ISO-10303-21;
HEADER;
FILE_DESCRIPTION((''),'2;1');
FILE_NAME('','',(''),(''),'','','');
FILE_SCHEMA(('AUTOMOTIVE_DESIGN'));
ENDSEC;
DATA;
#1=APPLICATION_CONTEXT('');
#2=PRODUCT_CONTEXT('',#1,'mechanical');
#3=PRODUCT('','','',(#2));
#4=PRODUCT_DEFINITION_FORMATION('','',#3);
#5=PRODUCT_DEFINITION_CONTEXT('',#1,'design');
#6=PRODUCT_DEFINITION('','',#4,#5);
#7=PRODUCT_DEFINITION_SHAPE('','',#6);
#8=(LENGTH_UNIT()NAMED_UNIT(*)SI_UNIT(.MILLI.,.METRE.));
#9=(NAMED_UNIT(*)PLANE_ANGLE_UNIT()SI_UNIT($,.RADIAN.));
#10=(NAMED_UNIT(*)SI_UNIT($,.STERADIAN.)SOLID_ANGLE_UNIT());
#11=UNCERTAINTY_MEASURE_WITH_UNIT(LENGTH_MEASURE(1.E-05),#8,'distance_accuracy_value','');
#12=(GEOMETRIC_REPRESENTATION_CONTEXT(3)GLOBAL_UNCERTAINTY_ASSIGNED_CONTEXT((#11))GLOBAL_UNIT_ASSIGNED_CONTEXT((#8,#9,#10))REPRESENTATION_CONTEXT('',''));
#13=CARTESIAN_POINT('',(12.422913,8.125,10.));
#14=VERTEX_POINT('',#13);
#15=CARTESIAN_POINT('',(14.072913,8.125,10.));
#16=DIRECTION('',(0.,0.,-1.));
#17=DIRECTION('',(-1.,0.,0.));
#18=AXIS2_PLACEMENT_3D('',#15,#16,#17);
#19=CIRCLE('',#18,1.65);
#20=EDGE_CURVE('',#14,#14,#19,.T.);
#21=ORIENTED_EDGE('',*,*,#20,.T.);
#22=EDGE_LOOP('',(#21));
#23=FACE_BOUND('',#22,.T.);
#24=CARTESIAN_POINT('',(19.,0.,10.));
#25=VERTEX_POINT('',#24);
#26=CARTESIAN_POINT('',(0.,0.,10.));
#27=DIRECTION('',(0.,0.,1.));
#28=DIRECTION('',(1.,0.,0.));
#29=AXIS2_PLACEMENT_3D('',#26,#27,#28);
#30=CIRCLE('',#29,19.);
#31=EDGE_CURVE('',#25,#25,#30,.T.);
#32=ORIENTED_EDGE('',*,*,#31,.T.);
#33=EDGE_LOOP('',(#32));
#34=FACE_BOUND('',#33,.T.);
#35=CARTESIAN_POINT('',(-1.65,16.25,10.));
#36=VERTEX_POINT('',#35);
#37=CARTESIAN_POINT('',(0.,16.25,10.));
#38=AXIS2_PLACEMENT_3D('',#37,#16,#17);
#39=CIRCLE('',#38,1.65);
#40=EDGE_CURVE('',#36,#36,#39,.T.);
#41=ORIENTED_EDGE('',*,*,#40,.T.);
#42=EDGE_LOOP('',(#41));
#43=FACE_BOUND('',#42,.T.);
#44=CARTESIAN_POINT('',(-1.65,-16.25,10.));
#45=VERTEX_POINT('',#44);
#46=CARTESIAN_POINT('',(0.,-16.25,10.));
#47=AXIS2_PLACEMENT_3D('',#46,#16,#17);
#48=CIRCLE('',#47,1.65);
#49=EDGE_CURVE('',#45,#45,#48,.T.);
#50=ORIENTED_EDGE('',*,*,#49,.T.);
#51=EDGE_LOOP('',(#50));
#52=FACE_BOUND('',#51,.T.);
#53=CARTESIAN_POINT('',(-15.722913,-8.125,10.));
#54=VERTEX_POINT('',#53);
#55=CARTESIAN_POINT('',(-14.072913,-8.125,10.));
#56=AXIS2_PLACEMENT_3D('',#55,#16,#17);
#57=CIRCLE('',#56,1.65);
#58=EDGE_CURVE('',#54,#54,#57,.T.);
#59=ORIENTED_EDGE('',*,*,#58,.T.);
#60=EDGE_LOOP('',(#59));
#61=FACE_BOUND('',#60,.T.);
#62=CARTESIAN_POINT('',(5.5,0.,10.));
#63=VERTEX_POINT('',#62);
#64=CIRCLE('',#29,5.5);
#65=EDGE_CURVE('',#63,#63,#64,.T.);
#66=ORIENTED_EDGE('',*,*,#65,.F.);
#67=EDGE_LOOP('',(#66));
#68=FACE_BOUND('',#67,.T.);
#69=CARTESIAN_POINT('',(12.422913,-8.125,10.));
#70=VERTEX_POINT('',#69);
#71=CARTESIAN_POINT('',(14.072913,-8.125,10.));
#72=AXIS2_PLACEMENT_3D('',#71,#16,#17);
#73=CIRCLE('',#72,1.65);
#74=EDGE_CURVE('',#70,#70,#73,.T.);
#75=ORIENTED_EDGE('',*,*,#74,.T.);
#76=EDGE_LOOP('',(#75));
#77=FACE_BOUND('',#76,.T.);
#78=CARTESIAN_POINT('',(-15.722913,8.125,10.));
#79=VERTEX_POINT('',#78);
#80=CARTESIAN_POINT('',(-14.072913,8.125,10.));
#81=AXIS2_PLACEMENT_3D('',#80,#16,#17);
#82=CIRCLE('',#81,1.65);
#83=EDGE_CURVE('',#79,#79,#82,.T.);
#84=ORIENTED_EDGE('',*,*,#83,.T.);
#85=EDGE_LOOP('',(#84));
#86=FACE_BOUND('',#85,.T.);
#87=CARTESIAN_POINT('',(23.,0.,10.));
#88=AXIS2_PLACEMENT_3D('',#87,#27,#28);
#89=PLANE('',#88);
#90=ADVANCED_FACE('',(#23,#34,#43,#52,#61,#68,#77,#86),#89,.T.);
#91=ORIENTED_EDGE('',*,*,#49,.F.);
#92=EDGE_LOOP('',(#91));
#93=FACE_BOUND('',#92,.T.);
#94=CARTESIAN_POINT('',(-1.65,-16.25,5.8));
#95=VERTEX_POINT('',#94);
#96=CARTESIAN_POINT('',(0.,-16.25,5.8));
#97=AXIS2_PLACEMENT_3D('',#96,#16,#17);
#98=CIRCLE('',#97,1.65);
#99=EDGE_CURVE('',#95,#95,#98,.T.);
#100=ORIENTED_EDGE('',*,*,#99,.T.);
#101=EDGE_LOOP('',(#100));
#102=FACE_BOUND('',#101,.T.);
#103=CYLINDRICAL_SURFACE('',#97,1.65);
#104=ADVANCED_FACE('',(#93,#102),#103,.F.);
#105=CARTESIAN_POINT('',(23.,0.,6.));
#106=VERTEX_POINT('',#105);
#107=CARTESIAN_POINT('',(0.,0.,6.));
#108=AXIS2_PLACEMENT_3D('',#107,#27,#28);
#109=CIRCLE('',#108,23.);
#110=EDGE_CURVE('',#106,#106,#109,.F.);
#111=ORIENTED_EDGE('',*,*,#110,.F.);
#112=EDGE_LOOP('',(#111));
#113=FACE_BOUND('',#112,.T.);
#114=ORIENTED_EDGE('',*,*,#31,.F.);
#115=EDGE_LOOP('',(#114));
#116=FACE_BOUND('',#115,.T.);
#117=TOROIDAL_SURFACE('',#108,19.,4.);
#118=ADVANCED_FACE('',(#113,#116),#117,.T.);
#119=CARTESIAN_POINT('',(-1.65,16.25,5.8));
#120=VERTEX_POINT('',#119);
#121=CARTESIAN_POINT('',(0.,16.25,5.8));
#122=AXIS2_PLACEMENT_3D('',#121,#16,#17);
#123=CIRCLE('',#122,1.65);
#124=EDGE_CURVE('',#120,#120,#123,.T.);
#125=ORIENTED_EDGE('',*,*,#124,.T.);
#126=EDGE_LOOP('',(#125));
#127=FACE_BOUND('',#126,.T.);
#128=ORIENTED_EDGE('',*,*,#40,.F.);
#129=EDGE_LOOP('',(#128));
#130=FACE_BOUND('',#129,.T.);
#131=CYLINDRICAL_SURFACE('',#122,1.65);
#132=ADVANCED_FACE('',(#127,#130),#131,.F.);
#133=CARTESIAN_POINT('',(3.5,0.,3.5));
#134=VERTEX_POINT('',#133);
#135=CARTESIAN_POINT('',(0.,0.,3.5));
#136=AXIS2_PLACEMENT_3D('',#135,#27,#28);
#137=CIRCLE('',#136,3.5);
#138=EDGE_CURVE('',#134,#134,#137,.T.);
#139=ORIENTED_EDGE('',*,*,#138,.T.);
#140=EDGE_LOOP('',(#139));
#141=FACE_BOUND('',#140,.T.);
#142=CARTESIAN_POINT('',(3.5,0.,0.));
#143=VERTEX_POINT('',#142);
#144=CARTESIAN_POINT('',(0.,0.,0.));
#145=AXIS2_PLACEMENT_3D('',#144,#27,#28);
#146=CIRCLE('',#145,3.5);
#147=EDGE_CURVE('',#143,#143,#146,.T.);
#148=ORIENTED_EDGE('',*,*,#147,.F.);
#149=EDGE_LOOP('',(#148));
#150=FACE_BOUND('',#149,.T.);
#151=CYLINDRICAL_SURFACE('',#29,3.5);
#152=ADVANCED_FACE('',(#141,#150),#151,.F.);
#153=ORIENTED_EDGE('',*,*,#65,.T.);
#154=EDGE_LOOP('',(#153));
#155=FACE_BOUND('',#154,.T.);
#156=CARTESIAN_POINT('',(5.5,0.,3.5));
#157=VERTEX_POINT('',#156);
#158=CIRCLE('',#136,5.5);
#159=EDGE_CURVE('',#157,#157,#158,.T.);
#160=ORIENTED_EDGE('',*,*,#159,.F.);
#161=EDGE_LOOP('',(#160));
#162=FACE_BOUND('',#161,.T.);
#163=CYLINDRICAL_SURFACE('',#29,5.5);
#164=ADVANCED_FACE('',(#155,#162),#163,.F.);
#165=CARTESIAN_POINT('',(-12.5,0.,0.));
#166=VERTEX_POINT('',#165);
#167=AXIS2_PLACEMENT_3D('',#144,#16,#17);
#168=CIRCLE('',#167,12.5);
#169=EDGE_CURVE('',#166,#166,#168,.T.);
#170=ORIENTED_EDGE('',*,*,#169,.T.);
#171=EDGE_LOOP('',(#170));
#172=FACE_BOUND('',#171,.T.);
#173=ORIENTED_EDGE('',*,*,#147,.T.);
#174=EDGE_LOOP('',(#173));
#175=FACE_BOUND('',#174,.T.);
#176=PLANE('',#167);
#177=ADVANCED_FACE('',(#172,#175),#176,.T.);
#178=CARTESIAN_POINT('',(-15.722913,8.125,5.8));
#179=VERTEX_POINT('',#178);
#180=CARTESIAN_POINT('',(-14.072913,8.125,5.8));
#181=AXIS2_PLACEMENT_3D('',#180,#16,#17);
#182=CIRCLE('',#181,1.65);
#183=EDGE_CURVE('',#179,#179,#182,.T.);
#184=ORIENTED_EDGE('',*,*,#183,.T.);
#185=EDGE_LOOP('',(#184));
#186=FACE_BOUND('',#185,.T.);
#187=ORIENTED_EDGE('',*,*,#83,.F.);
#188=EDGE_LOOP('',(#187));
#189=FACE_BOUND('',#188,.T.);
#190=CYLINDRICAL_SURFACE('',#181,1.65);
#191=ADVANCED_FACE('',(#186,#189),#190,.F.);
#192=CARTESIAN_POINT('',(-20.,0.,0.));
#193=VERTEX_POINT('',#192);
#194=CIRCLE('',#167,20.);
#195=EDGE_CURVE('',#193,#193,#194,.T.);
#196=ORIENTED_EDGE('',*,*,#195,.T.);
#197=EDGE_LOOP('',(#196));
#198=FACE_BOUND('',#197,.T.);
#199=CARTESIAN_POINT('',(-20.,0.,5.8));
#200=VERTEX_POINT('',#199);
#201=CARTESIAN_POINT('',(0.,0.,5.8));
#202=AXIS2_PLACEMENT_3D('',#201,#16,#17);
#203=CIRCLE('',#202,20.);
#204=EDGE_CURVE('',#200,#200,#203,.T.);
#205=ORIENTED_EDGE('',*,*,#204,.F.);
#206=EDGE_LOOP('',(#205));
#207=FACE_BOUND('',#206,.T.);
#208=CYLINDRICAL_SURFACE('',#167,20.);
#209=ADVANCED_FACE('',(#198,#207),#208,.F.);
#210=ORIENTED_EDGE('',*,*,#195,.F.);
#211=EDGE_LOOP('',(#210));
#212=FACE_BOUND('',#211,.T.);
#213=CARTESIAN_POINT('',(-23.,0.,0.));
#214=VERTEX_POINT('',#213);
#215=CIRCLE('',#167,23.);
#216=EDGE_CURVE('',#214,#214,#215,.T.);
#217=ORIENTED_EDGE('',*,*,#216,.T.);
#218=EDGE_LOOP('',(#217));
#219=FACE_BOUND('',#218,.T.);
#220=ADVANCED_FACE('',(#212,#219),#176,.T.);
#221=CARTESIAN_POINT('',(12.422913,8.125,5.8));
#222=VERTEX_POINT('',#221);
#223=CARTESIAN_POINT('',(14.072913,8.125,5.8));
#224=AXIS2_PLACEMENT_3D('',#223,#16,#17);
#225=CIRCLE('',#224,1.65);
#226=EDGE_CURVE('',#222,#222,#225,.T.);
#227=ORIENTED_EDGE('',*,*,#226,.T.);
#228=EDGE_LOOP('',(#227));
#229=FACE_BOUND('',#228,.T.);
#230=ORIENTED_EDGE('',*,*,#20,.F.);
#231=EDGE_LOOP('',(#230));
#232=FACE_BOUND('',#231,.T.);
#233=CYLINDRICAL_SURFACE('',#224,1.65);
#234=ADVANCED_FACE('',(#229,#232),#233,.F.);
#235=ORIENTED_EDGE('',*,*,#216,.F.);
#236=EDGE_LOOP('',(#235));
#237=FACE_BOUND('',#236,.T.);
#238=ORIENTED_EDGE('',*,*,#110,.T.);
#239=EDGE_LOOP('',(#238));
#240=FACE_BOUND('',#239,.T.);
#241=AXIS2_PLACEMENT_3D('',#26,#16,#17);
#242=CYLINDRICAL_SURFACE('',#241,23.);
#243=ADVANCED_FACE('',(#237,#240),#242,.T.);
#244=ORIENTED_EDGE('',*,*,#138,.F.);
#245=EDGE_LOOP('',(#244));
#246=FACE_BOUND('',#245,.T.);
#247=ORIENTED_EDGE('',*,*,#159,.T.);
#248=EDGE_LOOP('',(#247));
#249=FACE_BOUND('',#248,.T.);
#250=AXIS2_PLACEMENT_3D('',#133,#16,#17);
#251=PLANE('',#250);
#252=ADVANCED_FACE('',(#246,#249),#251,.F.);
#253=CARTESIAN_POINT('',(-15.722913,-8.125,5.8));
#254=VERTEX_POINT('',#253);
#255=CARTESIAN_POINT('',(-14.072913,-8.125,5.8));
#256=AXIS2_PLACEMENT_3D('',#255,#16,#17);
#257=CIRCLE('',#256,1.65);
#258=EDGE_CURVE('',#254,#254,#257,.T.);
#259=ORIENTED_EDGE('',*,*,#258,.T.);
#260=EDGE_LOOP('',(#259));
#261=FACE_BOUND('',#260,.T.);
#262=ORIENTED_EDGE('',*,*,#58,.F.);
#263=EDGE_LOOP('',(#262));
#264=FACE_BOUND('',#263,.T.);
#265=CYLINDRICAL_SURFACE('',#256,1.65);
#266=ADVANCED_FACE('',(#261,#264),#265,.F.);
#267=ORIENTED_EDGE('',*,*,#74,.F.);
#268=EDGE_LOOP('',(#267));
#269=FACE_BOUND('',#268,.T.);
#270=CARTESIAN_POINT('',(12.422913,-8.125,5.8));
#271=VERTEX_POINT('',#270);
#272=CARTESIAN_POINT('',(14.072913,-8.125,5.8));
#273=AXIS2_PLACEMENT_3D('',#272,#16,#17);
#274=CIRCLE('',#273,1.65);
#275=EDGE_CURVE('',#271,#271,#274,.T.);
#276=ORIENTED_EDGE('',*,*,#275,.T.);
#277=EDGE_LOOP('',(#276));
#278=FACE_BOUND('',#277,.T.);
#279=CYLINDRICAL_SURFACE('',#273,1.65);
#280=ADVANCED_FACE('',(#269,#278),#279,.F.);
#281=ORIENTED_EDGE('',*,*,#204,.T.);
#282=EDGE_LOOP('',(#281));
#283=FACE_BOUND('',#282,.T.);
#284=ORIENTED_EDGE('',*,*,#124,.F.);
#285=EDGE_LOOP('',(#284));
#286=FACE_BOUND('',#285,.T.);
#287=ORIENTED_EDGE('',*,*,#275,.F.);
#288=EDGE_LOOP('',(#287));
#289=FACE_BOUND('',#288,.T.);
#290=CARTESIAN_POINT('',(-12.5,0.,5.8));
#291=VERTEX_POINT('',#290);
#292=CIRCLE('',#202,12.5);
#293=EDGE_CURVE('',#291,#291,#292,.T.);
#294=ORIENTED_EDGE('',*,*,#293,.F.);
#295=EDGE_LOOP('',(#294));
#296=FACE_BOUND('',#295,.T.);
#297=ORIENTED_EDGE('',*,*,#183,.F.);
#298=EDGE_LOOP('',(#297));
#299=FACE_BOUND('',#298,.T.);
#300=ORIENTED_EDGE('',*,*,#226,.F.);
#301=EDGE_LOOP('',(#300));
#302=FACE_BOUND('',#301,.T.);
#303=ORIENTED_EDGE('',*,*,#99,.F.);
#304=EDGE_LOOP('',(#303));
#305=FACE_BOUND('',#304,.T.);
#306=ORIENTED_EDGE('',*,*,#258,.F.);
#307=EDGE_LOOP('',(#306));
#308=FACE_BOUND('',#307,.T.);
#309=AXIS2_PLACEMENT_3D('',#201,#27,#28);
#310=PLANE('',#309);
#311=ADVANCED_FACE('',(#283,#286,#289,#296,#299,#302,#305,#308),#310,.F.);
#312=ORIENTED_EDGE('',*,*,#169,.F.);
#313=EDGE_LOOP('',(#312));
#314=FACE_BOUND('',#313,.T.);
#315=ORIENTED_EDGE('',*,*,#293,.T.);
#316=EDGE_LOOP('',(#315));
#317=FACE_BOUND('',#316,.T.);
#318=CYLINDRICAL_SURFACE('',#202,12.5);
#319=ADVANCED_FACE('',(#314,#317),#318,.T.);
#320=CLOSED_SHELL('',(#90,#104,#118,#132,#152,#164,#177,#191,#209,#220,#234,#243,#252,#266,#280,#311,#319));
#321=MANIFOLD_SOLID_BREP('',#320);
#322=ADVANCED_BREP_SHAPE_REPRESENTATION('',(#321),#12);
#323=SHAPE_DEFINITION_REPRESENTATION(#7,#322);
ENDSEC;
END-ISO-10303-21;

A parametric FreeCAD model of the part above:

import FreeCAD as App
import Part
import Sketcher
from FreeCAD import Vector


def edges_at(feature, points):
    """Names of the edges that pass closest to the given points."""
    edges = feature.Shape.Edges
    near = lambda p: min(range(len(edges)), key=lambda i: edges[i].distToShape(Part.Vertex(*p))[0])
    return sorted({f"Edge{near(p) + 1}" for p in points})

doc = App.newDocument("Part")
body = doc.addObject("PartDesign::Body", "Body")

# Sketch on XZ plane
sketch1 = doc.addObject("Sketcher::SketchObject", "Sketch")
body.addObject(sketch1)
sketch1.AttachmentSupport = (doc.XZ_Plane, [""])
sketch1.MapMode = "FlatFace"
sketch1.addGeometry([
    Part.LineSegment(Vector(0, 10, 0), Vector(0, 0, 0)),
    Part.LineSegment(Vector(0, 0, 0), Vector(23, 0, 0)),
    Part.LineSegment(Vector(23, 0, 0), Vector(23, 10, 0)),
    Part.LineSegment(Vector(23, 10, 0), Vector(0, 10, 0)),
], False)
sketch1.addConstraint([
    Sketcher.Constraint("Coincident", 0, 2, 1, 1),
    Sketcher.Constraint("Coincident", 1, 2, 2, 1),
    Sketcher.Constraint("Coincident", 2, 2, 3, 1),
    Sketcher.Constraint("Coincident", 3, 2, 0, 1),
    Sketcher.Constraint("Vertical", 0),
    Sketcher.Constraint("Horizontal", 1),
    Sketcher.Constraint("Vertical", 2),
    Sketcher.Constraint("Horizontal", 3),
    Sketcher.Constraint("Coincident", 0, 2, -1, 1),
    Sketcher.Constraint("DistanceX", 1, 1, 1, 2, 23.0),
    Sketcher.Constraint("DistanceY", 0, 2, 0, 1, 10.0),
])
revolution = doc.addObject("PartDesign::Revolution", "Revolution")
body.addObject(revolution)
revolution.Profile = sketch1
revolution.ReferenceAxis = (sketch1, ["V_Axis"])
revolution.Angle = 360

# Sketch on XY plane
sketch2 = doc.addObject("Sketcher::SketchObject", "Sketch001")
body.addObject(sketch2)
sketch2.AttachmentSupport = (doc.XY_Plane, [""])
sketch2.MapMode = "FlatFace"
sketch2.addGeometry(Part.Circle(Vector(0, 0, 0), Vector(0, 0, 1), 20), False)
sketch2.addConstraint([
    Sketcher.Constraint("Coincident", 0, 3, -1, 1),
    Sketcher.Constraint("Diameter", 0, 40.0),
])
doc.recompute()
hole = doc.addObject("PartDesign::Hole", "Hole")
body.addObject(hole)
hole.Profile = sketch2
hole.ThreadType = "None"
hole.Diameter = 40
hole.DepthType = "Dimension"
hole.Depth = 5.8
hole.DrillPoint = "Flat"
hole.Reversed = True

# Sketch on XZ plane
sketch3 = doc.addObject("Sketcher::SketchObject", "Sketch002")
body.addObject(sketch3)
sketch3.AttachmentSupport = (doc.XZ_Plane, [""])
sketch3.MapMode = "FlatFace"
sketch3.addGeometry([
    Part.LineSegment(Vector(0, 6, 0), Vector(0, 0, 0)),
    Part.LineSegment(Vector(0, 0, 0), Vector(12, 0, 0)),
    Part.LineSegment(Vector(12, 0, 0), Vector(12, 6, 0)),
    Part.LineSegment(Vector(12, 6, 0), Vector(0, 6, 0)),
], False)
sketch3.addConstraint([
    Sketcher.Constraint("Coincident", 0, 2, 1, 1),
    Sketcher.Constraint("Coincident", 1, 2, 2, 1),
    Sketcher.Constraint("Coincident", 2, 2, 3, 1),
    Sketcher.Constraint("Coincident", 3, 2, 0, 1),
    Sketcher.Constraint("Vertical", 0),
    Sketcher.Constraint("Horizontal", 1),
    Sketcher.Constraint("Vertical", 2),
    Sketcher.Constraint("Horizontal", 3),
    Sketcher.Constraint("Coincident", 0, 2, -1, 1),
    Sketcher.Constraint("DistanceX", 1, 1, 1, 2, 12.5),
    Sketcher.Constraint("DistanceY", 0, 2, 0, 1, 5.8),
])
revolution2 = doc.addObject("PartDesign::Revolution", "Revolution001")
body.addObject(revolution2)
revolution2.Profile = sketch3
revolution2.ReferenceAxis = (sketch3, ["V_Axis"])
revolution2.Angle = 360

# Sketch on XY plane
sketch4 = doc.addObject("Sketcher::SketchObject", "Sketch003")
body.addObject(sketch4)
sketch4.AttachmentSupport = (doc.XY_Plane, [""])
sketch4.MapMode = "FlatFace"
sketch4.AttachmentOffset = App.Placement(Vector(0, 0, 5.8), App.Rotation())
sketch4.addGeometry([
    Part.Circle(Vector(14.1, 8.1, 0), Vector(0, 0, 1), 1.6),  # 0
    Part.Circle(Vector(14.1, -8.1, 0), Vector(0, 0, 1), 1.6),  # 1
    Part.Circle(Vector(0, -16.2, 0), Vector(0, 0, 1), 1.6),  # 2
    Part.Circle(Vector(-14.1, -8.1, 0), Vector(0, 0, 1), 1.6),  # 3
    Part.Circle(Vector(-14.1, 8.1, 0), Vector(0, 0, 1), 1.6),  # 4
    Part.Circle(Vector(0, 16.2, 0), Vector(0, 0, 1), 1.6),  # 5
], False)
sketch4.addConstraint([
    Sketcher.Constraint("Equal", 0, 1),
    Sketcher.Constraint("Equal", 1, 2),
    Sketcher.Constraint("Equal", 2, 3),
    Sketcher.Constraint("Equal", 3, 4),
    Sketcher.Constraint("Equal", 4, 5),
    Sketcher.Constraint("Symmetric", 0, 3, 3, 3, -1, 1),
    Sketcher.Constraint("Symmetric", 1, 3, 4, 3, -1, 1),
    Sketcher.Constraint("Symmetric", 2, 3, 5, 3, -1, 1),
    Sketcher.Constraint("Symmetric", 1, 3, 3, 3, -2),
    Sketcher.Constraint("PointOnObject", 2, 3, -2),
    Sketcher.Constraint("Diameter", 0, 3.3),
    Sketcher.Constraint("DistanceY", 2, 3, 5, 3, 32.5),
    Sketcher.Constraint("DistanceY", 1, 3, 0, 3, 16.25),
    Sketcher.Constraint("DistanceX", -1, 1, 0, 3, 14.072913),
])
doc.recompute()
hole2 = doc.addObject("PartDesign::Hole", "Hole001")
body.addObject(hole2)
hole2.Profile = sketch4
hole2.ThreadType = "None"
hole2.Diameter = 3.3
hole2.DepthType = "ThroughAll"
hole2.Reversed = True

# Sketch on XY plane
sketch5 = doc.addObject("Sketcher::SketchObject", "Sketch004")
body.addObject(sketch5)
sketch5.AttachmentSupport = (doc.XY_Plane, [""])
sketch5.MapMode = "FlatFace"
sketch5.AttachmentOffset = App.Placement(Vector(0, 0, 10), App.Rotation())
sketch5.addGeometry(Part.Circle(Vector(0, 0, 0), Vector(0, 0, 1), 3.5), False)
sketch5.addConstraint([
    Sketcher.Constraint("Coincident", 0, 3, -1, 1),
    Sketcher.Constraint("Diameter", 0, 7.0),
])
doc.recompute()
hole3 = doc.addObject("PartDesign::Hole", "Hole002")
body.addObject(hole3)
hole3.Profile = sketch5
hole3.ThreadType = "None"
hole3.Diameter = 7
hole3.DepthType = "ThroughAll"
hole3.HoleCutType = "Counterbore"
hole3.HoleCutDiameter = 11
hole3.HoleCutDepth = 6.5
doc.recompute()

fillet = doc.addObject("PartDesign::Fillet", "Fillet")
body.addObject(fillet)
fillet.Base = (hole3, edges_at(hole3, [(23, 0, 10)]))
fillet.Radius = 4

doc.recompute()
